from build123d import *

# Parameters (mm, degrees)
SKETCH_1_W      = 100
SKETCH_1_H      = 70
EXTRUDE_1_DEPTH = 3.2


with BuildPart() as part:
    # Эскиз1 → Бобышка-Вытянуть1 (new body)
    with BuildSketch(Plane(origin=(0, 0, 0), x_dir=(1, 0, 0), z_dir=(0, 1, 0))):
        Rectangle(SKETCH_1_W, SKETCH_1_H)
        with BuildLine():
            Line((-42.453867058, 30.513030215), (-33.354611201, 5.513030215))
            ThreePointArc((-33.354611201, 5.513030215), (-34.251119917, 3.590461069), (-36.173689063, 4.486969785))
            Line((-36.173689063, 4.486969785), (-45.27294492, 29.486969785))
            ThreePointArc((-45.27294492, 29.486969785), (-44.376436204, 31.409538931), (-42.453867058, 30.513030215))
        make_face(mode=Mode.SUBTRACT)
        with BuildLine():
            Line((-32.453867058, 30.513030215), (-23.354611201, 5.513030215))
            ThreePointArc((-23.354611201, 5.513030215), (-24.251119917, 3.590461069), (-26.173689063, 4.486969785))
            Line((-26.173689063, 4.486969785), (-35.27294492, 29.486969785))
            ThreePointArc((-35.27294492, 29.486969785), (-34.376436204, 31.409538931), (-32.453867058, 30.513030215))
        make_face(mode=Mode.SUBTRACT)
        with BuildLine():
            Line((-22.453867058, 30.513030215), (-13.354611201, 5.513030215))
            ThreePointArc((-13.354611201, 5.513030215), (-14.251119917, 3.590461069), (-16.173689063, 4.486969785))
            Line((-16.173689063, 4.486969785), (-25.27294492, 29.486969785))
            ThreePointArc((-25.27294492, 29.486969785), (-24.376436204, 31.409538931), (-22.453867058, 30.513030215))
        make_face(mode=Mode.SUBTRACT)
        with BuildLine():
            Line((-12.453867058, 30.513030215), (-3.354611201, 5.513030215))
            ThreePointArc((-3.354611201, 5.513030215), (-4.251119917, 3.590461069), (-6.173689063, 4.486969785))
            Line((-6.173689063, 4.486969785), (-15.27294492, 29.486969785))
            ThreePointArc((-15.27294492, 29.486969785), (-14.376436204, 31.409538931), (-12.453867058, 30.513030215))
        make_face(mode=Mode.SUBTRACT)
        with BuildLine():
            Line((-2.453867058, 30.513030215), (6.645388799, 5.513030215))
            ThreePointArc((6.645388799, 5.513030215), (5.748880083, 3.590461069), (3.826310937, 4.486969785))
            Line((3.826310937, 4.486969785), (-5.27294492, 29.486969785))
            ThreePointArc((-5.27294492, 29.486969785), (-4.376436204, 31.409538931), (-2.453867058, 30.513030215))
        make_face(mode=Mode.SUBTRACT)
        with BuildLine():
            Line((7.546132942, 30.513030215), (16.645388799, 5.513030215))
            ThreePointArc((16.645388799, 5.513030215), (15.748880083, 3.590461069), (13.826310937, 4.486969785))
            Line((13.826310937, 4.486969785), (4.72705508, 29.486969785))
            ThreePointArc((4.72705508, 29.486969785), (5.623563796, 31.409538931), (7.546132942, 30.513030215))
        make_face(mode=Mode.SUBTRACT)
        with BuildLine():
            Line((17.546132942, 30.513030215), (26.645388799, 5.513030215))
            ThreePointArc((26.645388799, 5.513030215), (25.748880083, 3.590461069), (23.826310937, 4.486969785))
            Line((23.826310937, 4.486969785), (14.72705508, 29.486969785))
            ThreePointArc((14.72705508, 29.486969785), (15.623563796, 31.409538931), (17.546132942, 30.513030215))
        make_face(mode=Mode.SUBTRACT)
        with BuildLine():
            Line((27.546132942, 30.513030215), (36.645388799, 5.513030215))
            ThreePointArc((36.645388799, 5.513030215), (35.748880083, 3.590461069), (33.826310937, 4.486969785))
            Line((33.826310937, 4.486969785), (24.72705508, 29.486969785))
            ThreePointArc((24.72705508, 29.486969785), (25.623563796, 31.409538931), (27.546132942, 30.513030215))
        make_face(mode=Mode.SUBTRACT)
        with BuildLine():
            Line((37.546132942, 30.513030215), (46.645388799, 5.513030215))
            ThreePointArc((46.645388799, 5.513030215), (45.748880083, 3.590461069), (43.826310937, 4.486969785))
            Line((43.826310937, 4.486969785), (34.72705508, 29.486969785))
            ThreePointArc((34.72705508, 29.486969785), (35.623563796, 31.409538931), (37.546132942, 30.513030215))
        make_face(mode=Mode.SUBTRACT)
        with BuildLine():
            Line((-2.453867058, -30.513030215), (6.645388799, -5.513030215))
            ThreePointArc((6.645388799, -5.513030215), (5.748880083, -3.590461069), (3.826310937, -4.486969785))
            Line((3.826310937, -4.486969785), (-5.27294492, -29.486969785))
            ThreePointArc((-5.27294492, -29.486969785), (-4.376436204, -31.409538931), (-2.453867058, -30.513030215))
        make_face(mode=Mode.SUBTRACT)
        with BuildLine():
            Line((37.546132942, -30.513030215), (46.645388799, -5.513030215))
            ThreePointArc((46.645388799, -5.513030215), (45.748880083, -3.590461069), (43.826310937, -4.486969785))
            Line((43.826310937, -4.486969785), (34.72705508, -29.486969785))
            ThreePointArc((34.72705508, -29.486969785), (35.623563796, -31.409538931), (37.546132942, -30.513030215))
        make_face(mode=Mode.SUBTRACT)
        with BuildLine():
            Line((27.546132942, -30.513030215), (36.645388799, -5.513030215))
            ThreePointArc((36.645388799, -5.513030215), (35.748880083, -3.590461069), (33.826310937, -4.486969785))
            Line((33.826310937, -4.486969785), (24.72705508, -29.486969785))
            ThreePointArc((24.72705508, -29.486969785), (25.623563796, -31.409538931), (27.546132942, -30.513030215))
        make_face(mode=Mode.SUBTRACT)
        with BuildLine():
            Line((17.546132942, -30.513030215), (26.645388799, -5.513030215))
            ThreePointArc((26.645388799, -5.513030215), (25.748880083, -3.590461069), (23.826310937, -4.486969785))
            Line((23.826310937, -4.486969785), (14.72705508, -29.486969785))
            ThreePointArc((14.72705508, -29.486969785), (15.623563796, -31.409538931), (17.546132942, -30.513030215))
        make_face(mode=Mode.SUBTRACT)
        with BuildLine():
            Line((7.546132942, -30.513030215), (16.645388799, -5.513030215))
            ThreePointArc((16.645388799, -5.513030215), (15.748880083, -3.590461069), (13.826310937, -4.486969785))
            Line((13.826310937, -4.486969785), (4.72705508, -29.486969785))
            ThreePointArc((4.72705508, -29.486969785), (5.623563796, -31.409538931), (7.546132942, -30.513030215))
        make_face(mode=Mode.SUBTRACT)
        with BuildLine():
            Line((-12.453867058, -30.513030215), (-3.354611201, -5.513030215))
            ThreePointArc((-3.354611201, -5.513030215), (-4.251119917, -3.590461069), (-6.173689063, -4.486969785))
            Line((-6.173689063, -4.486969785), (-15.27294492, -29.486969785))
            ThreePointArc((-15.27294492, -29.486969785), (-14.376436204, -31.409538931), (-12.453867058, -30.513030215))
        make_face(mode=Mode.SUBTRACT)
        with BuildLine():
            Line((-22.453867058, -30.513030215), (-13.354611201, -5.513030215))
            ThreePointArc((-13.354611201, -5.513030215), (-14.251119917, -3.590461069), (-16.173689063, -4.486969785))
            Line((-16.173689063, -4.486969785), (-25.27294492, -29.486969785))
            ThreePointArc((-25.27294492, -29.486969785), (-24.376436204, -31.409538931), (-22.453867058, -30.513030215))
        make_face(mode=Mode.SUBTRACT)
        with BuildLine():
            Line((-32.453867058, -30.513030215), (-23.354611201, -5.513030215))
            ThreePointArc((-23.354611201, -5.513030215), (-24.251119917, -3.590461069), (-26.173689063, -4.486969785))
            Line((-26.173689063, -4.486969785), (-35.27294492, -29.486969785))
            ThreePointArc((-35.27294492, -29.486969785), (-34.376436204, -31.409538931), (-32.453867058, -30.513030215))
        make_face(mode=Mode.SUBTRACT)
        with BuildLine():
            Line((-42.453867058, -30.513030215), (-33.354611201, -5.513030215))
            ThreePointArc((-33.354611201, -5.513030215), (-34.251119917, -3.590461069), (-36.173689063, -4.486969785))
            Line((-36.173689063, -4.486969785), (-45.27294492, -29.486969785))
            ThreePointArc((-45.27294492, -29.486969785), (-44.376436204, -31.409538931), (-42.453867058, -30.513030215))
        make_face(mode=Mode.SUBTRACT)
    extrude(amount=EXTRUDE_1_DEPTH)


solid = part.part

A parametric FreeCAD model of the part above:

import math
import FreeCAD as App
import Part
import Sketcher
from FreeCAD import Vector
Q = App.Units.Quantity


def add_polygon(sketch, points):
    """Adds a closed chain of lines whose ends are joined by coincident constraints."""
    first, n = sketch.GeometryCount, len(points)
    for a, b in zip(points, points[1:] + points[:1]):
        sketch.addGeometry(Part.LineSegment(App.Vector(*a, 0), App.Vector(*b, 0)), False)
    for i in range(n):
        sketch.addConstraint(Sketcher.Constraint("Coincident", first + i, 2, first + (i + 1) % n, 1))

doc = App.newDocument("Part")
params = doc.addObject("Spreadsheet::Sheet", "Params")
for row, (alias, value) in enumerate([
    ("sketch1_radius", "1.5 mm"),
    ("sketch1_width", "100 mm"),
    ("sketch1_height", "70 mm"),
    ("pad1_length", "3.2 mm"),
], start=1):
    params.set(f"A{row}", alias)
    params.set(f"B{row}", "=" + value)
    params.setAlias(f"B{row}", alias)

body = doc.addObject("PartDesign::Body", "Body")

sketch1 = doc.addObject("Sketcher::SketchObject", "Sketch")
body.addObject(sketch1)
sketch1.AttachmentSupport = (doc.XZ_Plane, [""])
sketch1.MapMode = "FlatFace"
add_polygon(sketch1, [(-50, -35), (-50, 35), (50, 35), (50, -35)])
sketch1.addGeometry(Part.LineSegment(Vector(-33.4, 5.5, 0), Vector(-42.5, 30.5, 0)), False)
sketch1.addGeometry(Part.ArcOfCircle(Part.Circle(Vector(-43.9, 30, 0), Vector(0, 0, 1), 1.5), math.radians(20), math.radians(200)), False)
sketch1.addGeometry(Part.LineSegment(Vector(-45.3, 29.5, 0), Vector(-36.2, 4.5, 0)), False)
sketch1.addGeometry(Part.ArcOfCircle(Part.Circle(Vector(-34.8, 5, 0), Vector(0, 0, 1), 1.5), math.radians(-160), math.radians(20)), False)
sketch1.addGeometry(Part.LineSegment(Vector(-23.4, 5.5, 0), Vector(-32.5, 30.5, 0)), False)
sketch1.addGeometry(Part.ArcOfCircle(Part.Circle(Vector(-33.9, 30, 0), Vector(0, 0, 1), 1.5), math.radians(20), math.radians(200)), False)
sketch1.addGeometry(Part.LineSegment(Vector(-35.3, 29.5, 0), Vector(-26.2, 4.5, 0)), False)
sketch1.addGeometry(Part.ArcOfCircle(Part.Circle(Vector(-24.8, 5, 0), Vector(0, 0, 1), 1.5), math.radians(-160), math.radians(20)), False)
sketch1.addGeometry(Part.LineSegment(Vector(-13.4, 5.5, 0), Vector(-22.5, 30.5, 0)), False)
sketch1.addGeometry(Part.ArcOfCircle(Part.Circle(Vector(-23.9, 30, 0), Vector(0, 0, 1), 1.5), math.radians(20), math.radians(200)), False)
sketch1.addGeometry(Part.LineSegment(Vector(-25.3, 29.5, 0), Vector(-16.2, 4.5, 0)), False)
sketch1.addGeometry(Part.ArcOfCircle(Part.Circle(Vector(-14.8, 5, 0), Vector(0, 0, 1), 1.5), math.radians(-160), math.radians(20)), False)
sketch1.addGeometry(Part.LineSegment(Vector(-3.4, 5.5, 0), Vector(-12.5, 30.5, 0)), False)
sketch1.addGeometry(Part.ArcOfCircle(Part.Circle(Vector(-13.9, 30, 0), Vector(0, 0, 1), 1.5), math.radians(20), math.radians(200)), False)
sketch1.addGeometry(Part.LineSegment(Vector(-15.3, 29.5, 0), Vector(-6.2, 4.5, 0)), False)
sketch1.addGeometry(Part.ArcOfCircle(Part.Circle(Vector(-4.8, 5, 0), Vector(0, 0, 1), 1.5), math.radians(-160), math.radians(20)), False)
sketch1.addGeometry(Part.LineSegment(Vector(6.6, 5.5, 0), Vector(-2.5, 30.5, 0)), False)
sketch1.addGeometry(Part.ArcOfCircle(Part.Circle(Vector(-3.9, 30, 0), Vector(0, 0, 1), 1.5), math.radians(20), math.radians(200)), False)
sketch1.addGeometry(Part.LineSegment(Vector(-5.3, 29.5, 0), Vector(3.8, 4.5, 0)), False)
sketch1.addGeometry(Part.ArcOfCircle(Part.Circle(Vector(5.2, 5, 0), Vector(0, 0, 1), 1.5), math.radians(-160), math.radians(20)), False)
sketch1.addGeometry(Part.LineSegment(Vector(16.6, 5.5, 0), Vector(7.5, 30.5, 0)), False)
sketch1.addGeometry(Part.ArcOfCircle(Part.Circle(Vector(6.1, 30, 0), Vector(0, 0, 1), 1.5), math.radians(20), math.radians(200)), False)
sketch1.addGeometry(Part.LineSegment(Vector(4.7, 29.5, 0), Vector(13.8, 4.5, 0)), False)
sketch1.addGeometry(Part.ArcOfCircle(Part.Circle(Vector(15.2, 5, 0), Vector(0, 0, 1), 1.5), math.radians(-160), math.radians(20)), False)
sketch1.addGeometry(Part.LineSegment(Vector(26.6, 5.5, 0), Vector(17.5, 30.5, 0)), False)
sketch1.addGeometry(Part.ArcOfCircle(Part.Circle(Vector(16.1, 30, 0), Vector(0, 0, 1), 1.5), math.radians(20), math.radians(200)), False)
sketch1.addGeometry(Part.LineSegment(Vector(14.7, 29.5, 0), Vector(23.8, 4.5, 0)), False)
sketch1.addGeometry(Part.ArcOfCircle(Part.Circle(Vector(25.2, 5, 0), Vector(0, 0, 1), 1.5), math.radians(-160), math.radians(20)), False)
sketch1.addGeometry(Part.LineSegment(Vector(36.6, 5.5, 0), Vector(27.5, 30.5, 0)), False)
sketch1.addGeometry(Part.ArcOfCircle(Part.Circle(Vector(26.1, 30, 0), Vector(0, 0, 1), 1.5), math.radians(20), math.radians(200)), False)
sketch1.addGeometry(Part.LineSegment(Vector(24.7, 29.5, 0), Vector(33.8, 4.5, 0)), False)
sketch1.addGeometry(Part.ArcOfCircle(Part.Circle(Vector(35.2, 5, 0), Vector(0, 0, 1), 1.5), math.radians(-160), math.radians(20)), False)
sketch1.addGeometry(Part.LineSegment(Vector(46.6, 5.5, 0), Vector(37.5, 30.5, 0)), False)
sketch1.addGeometry(Part.ArcOfCircle(Part.Circle(Vector(36.1, 30, 0), Vector(0, 0, 1), 1.5), math.radians(20), math.radians(200)), False)
sketch1.addGeometry(Part.LineSegment(Vector(34.7, 29.5, 0), Vector(43.8, 4.5, 0)), False)
sketch1.addGeometry(Part.ArcOfCircle(Part.Circle(Vector(45.2, 5, 0), Vector(0, 0, 1), 1.5), math.radians(-160), math.radians(20)), False)
sketch1.addGeometry(Part.ArcOfCircle(Part.Circle(Vector(-43.9, -30, 0), Vector(0, 0, 1), 1.5), math.radians(160), math.radians(340)), False)
sketch1.addGeometry(Part.LineSegment(Vector(-42.5, -30.5, 0), Vector(-33.4, -5.5, 0)), False)
sketch1.addGeometry(Part.ArcOfCircle(Part.Circle(Vector(-34.8, -5, 0), Vector(0, 0, 1), 1.5), math.radians(-20), math.radians(160)), False)
sketch1.addGeometry(Part.LineSegment(Vector(-36.2, -4.5, 0), Vector(-45.3, -29.5, 0)), False)
sketch1.addGeometry(Part.ArcOfCircle(Part.Circle(Vector(-33.9, -30, 0), Vector(0, 0, 1), 1.5), math.radians(160), math.radians(340)), False)
sketch1.addGeometry(Part.LineSegment(Vector(-32.5, -30.5, 0), Vector(-23.4, -5.5, 0)), False)
sketch1.addGeometry(Part.ArcOfCircle(Part.Circle(Vector(-24.8, -5, 0), Vector(0, 0, 1), 1.5), math.radians(-20), math.radians(160)), False)
sketch1.addGeometry(Part.LineSegment(Vector(-26.2, -4.5, 0), Vector(-35.3, -29.5, 0)), False)
sketch1.addGeometry(Part.ArcOfCircle(Part.Circle(Vector(-23.9, -30, 0), Vector(0, 0, 1), 1.5), math.radians(160), math.radians(340)), False)
sketch1.addGeometry(Part.LineSegment(Vector(-22.5, -30.5, 0), Vector(-13.4, -5.5, 0)), False)
sketch1.addGeometry(Part.ArcOfCircle(Part.Circle(Vector(-14.8, -5, 0), Vector(0, 0, 1), 1.5), math.radians(-20), math.radians(160)), False)
sketch1.addGeometry(Part.LineSegment(Vector(-16.2, -4.5, 0), Vector(-25.3, -29.5, 0)), False)
sketch1.addGeometry(Part.ArcOfCircle(Part.Circle(Vector(-13.9, -30, 0), Vector(0, 0, 1), 1.5), math.radians(160), math.radians(340)), False)
sketch1.addGeometry(Part.LineSegment(Vector(-12.5, -30.5, 0), Vector(-3.4, -5.5, 0)), False)
sketch1.addGeometry(Part.ArcOfCircle(Part.Circle(Vector(-4.8, -5, 0), Vector(0, 0, 1), 1.5), math.radians(-20), math.radians(160)), False)
sketch1.addGeometry(Part.LineSegment(Vector(-6.2, -4.5, 0), Vector(-15.3, -29.5, 0)), False)
sketch1.addGeometry(Part.ArcOfCircle(Part.Circle(Vector(-3.9, -30, 0), Vector(0, 0, 1), 1.5), math.radians(160), math.radians(340)), False)
sketch1.addGeometry(Part.LineSegment(Vector(-2.5, -30.5, 0), Vector(6.6, -5.5, 0)), False)
sketch1.addGeometry(Part.ArcOfCircle(Part.Circle(Vector(5.2, -5, 0), Vector(0, 0, 1), 1.5), math.radians(-20), math.radians(160)), False)
sketch1.addGeometry(Part.LineSegment(Vector(3.8, -4.5, 0), Vector(-5.3, -29.5, 0)), False)
sketch1.addGeometry(Part.ArcOfCircle(Part.Circle(Vector(6.1, -30, 0), Vector(0, 0, 1), 1.5), math.radians(160), math.radians(340)), False)
sketch1.addGeometry(Part.LineSegment(Vector(7.5, -30.5, 0), Vector(16.6, -5.5, 0)), False)
sketch1.addGeometry(Part.ArcOfCircle(Part.Circle(Vector(15.2, -5, 0), Vector(0, 0, 1), 1.5), math.radians(-20), math.radians(160)), False)
sketch1.addGeometry(Part.LineSegment(Vector(13.8, -4.5, 0), Vector(4.7, -29.5, 0)), False)
sketch1.addGeometry(Part.ArcOfCircle(Part.Circle(Vector(16.1, -30, 0), Vector(0, 0, 1), 1.5), math.radians(160), math.radians(340)), False)
sketch1.addGeometry(Part.LineSegment(Vector(17.5, -30.5, 0), Vector(26.6, -5.5, 0)), False)
sketch1.addGeometry(Part.ArcOfCircle(Part.Circle(Vector(25.2, -5, 0), Vector(0, 0, 1), 1.5), math.radians(-20), math.radians(160)), False)
sketch1.addGeometry(Part.LineSegment(Vector(23.8, -4.5, 0), Vector(14.7, -29.5, 0)), False)
sketch1.addGeometry(Part.ArcOfCircle(Part.Circle(Vector(26.1, -30, 0), Vector(0, 0, 1), 1.5), math.radians(160), math.radians(340)), False)
sketch1.addGeometry(Part.LineSegment(Vector(27.5, -30.5, 0), Vector(36.6, -5.5, 0)), False)
sketch1.addGeometry(Part.ArcOfCircle(Part.Circle(Vector(35.2, -5, 0), Vector(0, 0, 1), 1.5), math.radians(-20), math.radians(160)), False)
sketch1.addGeometry(Part.LineSegment(Vector(33.8, -4.5, 0), Vector(24.7, -29.5, 0)), False)
sketch1.addGeometry(Part.ArcOfCircle(Part.Circle(Vector(36.1, -30, 0), Vector(0, 0, 1), 1.5), math.radians(160), math.radians(340)), False)
sketch1.addGeometry(Part.LineSegment(Vector(37.5, -30.5, 0), Vector(46.6, -5.5, 0)), False)
sketch1.addGeometry(Part.ArcOfCircle(Part.Circle(Vector(45.2, -5, 0), Vector(0, 0, 1), 1.5), math.radians(-20), math.radians(160)), False)
sketch1.addGeometry(Part.LineSegment(Vector(43.8, -4.5, 0), Vector(34.7, -29.5, 0)), False)
sketch1.addConstraint([
    Sketcher.Constraint("Tangent", 4, 2, 5, 1),
    Sketcher.Constraint("Tangent", 5, 2, 6, 1),
    Sketcher.Constraint("Tangent", 6, 2, 7, 1),
    Sketcher.Constraint("Tangent", 7, 2, 4, 1),
    Sketcher.Constraint("Tangent", 8, 2, 9, 1),
    Sketcher.Constraint("Tangent", 9, 2, 10, 1),
    Sketcher.Constraint("Tangent", 10, 2, 11, 1),
    Sketcher.Constraint("Tangent", 11, 2, 8, 1),
    Sketcher.Constraint("Tangent", 12, 2, 13, 1),
    Sketcher.Constraint("Tangent", 13, 2, 14, 1),
    Sketcher.Constraint("Tangent", 14, 2, 15, 1),
    Sketcher.Constraint("Tangent", 15, 2, 12, 1),
    Sketcher.Constraint("Tangent", 16, 2, 17, 1),
    Sketcher.Constraint("Tangent", 17, 2, 18, 1),
    Sketcher.Constraint("Tangent", 18, 2, 19, 1),
    Sketcher.Constraint("Tangent", 19, 2, 16, 1),
    Sketcher.Constraint("Tangent", 20, 2, 21, 1),
    Sketcher.Constraint("Tangent", 21, 2, 22, 1),
    Sketcher.Constraint("Tangent", 22, 2, 23, 1),
    Sketcher.Constraint("Tangent", 23, 2, 20, 1),
    Sketcher.Constraint("Tangent", 24, 2, 25, 1),
    Sketcher.Constraint("Tangent", 25, 2, 26, 1),
    Sketcher.Constraint("Tangent", 26, 2, 27, 1),
    Sketcher.Constraint("Tangent", 27, 2, 24, 1),
    Sketcher.Constraint("Tangent", 28, 2, 29, 1),
    Sketcher.Constraint("Tangent", 29, 2, 30, 1),
    Sketcher.Constraint("Tangent", 30, 2, 31, 1),
    Sketcher.Constraint("Tangent", 31, 2, 28, 1),
    Sketcher.Constraint("Tangent", 32, 2, 33, 1),
    Sketcher.Constraint("Tangent", 33, 2, 34, 1),
    Sketcher.Constraint("Tangent", 34, 2, 35, 1),
    Sketcher.Constraint("Tangent", 35, 2, 32, 1),
    Sketcher.Constraint("Tangent", 36, 2, 37, 1),
    Sketcher.Constraint("Tangent", 37, 2, 38, 1),
    Sketcher.Constraint("Tangent", 38, 2, 39, 1),
    Sketcher.Constraint("Tangent", 39, 2, 36, 1),
    Sketcher.Constraint("Tangent", 40, 2, 41, 1),
    Sketcher.Constraint("Tangent", 41, 2, 42, 1),
    Sketcher.Constraint("Tangent", 42, 2, 43, 1),
    Sketcher.Constraint("Tangent", 43, 2, 40, 1),
    Sketcher.Constraint("Tangent", 44, 2, 45, 1),
    Sketcher.Constraint("Tangent", 45, 2, 46, 1),
    Sketcher.Constraint("Tangent", 46, 2, 47, 1),
    Sketcher.Constraint("Tangent", 47, 2, 44, 1),
    Sketcher.Constraint("Tangent", 48, 2, 49, 1),
    Sketcher.Constraint("Tangent", 49, 2, 50, 1),
    Sketcher.Constraint("Tangent", 50, 2, 51, 1),
    Sketcher.Constraint("Tangent", 51, 2, 48, 1),
    Sketcher.Constraint("Tangent", 52, 2, 53, 1),
    Sketcher.Constraint("Tangent", 53, 2, 54, 1),
    Sketcher.Constraint("Tangent", 54, 2, 55, 1),
    Sketcher.Constraint("Tangent", 55, 2, 52, 1),
    Sketcher.Constraint("Tangent", 56, 2, 57, 1),
    Sketcher.Constraint("Tangent", 57, 2, 58, 1),
    Sketcher.Constraint("Tangent", 58, 2, 59, 1),
    Sketcher.Constraint("Tangent", 59, 2, 56, 1),
    Sketcher.Constraint("Tangent", 60, 2, 61, 1),
    Sketcher.Constraint("Tangent", 61, 2, 62, 1),
    Sketcher.Constraint("Tangent", 62, 2, 63, 1),
    Sketcher.Constraint("Tangent", 63, 2, 60, 1),
    Sketcher.Constraint("Tangent", 64, 2, 65, 1),
    Sketcher.Constraint("Tangent", 65, 2, 66, 1),
    Sketcher.Constraint("Tangent", 66, 2, 67, 1),
    Sketcher.Constraint("Tangent", 67, 2, 64, 1),
    Sketcher.Constraint("Tangent", 68, 2, 69, 1),
    Sketcher.Constraint("Tangent", 69, 2, 70, 1),
    Sketcher.Constraint("Tangent", 70, 2, 71, 1),
    Sketcher.Constraint("Tangent", 71, 2, 68, 1),
    Sketcher.Constraint("Tangent", 72, 2, 73, 1),
    Sketcher.Constraint("Tangent", 73, 2, 74, 1),
    Sketcher.Constraint("Tangent", 74, 2, 75, 1),
    Sketcher.Constraint("Tangent", 75, 2, 72, 1),
    Sketcher.Constraint("Vertical", 0),
    Sketcher.Constraint("Horizontal", 1),
    Sketcher.Constraint("Vertical", 2),
    Sketcher.Constraint("Horizontal", 3),
    Sketcher.Constraint("Equal", 5, 7),
    Sketcher.Constraint("Equal", 7, 9),
    Sketcher.Constraint("Equal", 9, 11),
    Sketcher.Constraint("Equal", 11, 13),
    Sketcher.Constraint("Equal", 13, 15),
    Sketcher.Constraint("Equal", 15, 17),
    Sketcher.Constraint("Equal", 17, 19),
    Sketcher.Constraint("Equal", 19, 21),
    Sketcher.Constraint("Equal", 21, 23),
    Sketcher.Constraint("Equal", 23, 25),
    Sketcher.Constraint("Equal", 25, 27),
    Sketcher.Constraint("Equal", 27, 29),
    Sketcher.Constraint("Equal", 29, 31),
    Sketcher.Constraint("Equal", 31, 33),
    Sketcher.Constraint("Equal", 33, 35),
    Sketcher.Constraint("Equal", 35, 37),
    Sketcher.Constraint("Equal", 37, 39),
    Sketcher.Constraint("Equal", 39, 40),
    Sketcher.Constraint("Equal", 40, 42),
    Sketcher.Constraint("Equal", 42, 44),
    Sketcher.Constraint("Equal", 44, 46),
    Sketcher.Constraint("Equal", 46, 48),
    Sketcher.Constraint("Equal", 48, 50),
    Sketcher.Constraint("Equal", 50, 52),
    Sketcher.Constraint("Equal", 52, 54),
    Sketcher.Constraint("Equal", 54, 56),
    Sketcher.Constraint("Equal", 56, 58),
    Sketcher.Constraint("Equal", 58, 60),
    Sketcher.Constraint("Equal", 60, 62),
    Sketcher.Constraint("Equal", 62, 64),
    Sketcher.Constraint("Equal", 64, 66),
    Sketcher.Constraint("Equal", 66, 68),
    Sketcher.Constraint("Equal", 68, 70),
    Sketcher.Constraint("Equal", 70, 72),
    Sketcher.Constraint("Equal", 72, 74),
    Sketcher.Constraint("Symmetric", 0, 2, 2, 2, -1, 1),
    Sketcher.Constraint("Symmetric", 5, 3, 40, 3, -1),
    Sketcher.Constraint("Symmetric", 7, 3, 42, 3, -1),
    Sketcher.Constraint("Symmetric", 9, 3, 44, 3, -1),
    Sketcher.Constraint("Symmetric", 11, 3, 46, 3, -1),
    Sketcher.Constraint("Symmetric", 13, 3, 48, 3, -1),
    Sketcher.Constraint("Symmetric", 15, 3, 50, 3, -1),
    Sketcher.Constraint("Symmetric", 17, 3, 52, 3, -1),
    Sketcher.Constraint("Symmetric", 19, 3, 54, 3, -1),
    Sketcher.Constraint("Symmetric", 21, 3, 56, 3, -1),
    Sketcher.Constraint("Symmetric", 23, 3, 58, 3, -1),
    Sketcher.Constraint("Symmetric", 25, 3, 60, 3, -1),
    Sketcher.Constraint("Symmetric", 27, 3, 62, 3, -1),
    Sketcher.Constraint("Symmetric", 29, 3, 64, 3, -1),
    Sketcher.Constraint("Symmetric", 31, 3, 66, 3, -1),
    Sketcher.Constraint("Symmetric", 33, 3, 68, 3, -1),
    Sketcher.Constraint("Symmetric", 35, 3, 70, 3, -1),
    Sketcher.Constraint("Symmetric", 37, 3, 72, 3, -1),
    Sketcher.Constraint("Symmetric", 39, 3, 74, 3, -1),
    Sketcher.Constraint("Parallel", 6, 8),
    Sketcher.Constraint("Parallel", 10, 12),
    Sketcher.Constraint("Parallel", 14, 16),
    Sketcher.Constraint("Parallel", 18, 20),
    Sketcher.Constraint("Parallel", 22, 24),
    Sketcher.Constraint("Parallel", 26, 28),
    Sketcher.Constraint("Parallel", 30, 32),
    Sketcher.Constraint("Parallel", 34, 36),
    Sketcher.Constraint("Horizontal", 5, 3, 9, 3),
    Sketcher.Constraint("Horizontal", 7, 3, 11, 3),
    Sketcher.Constraint("Horizontal", 9, 3, 13, 3),
    Sketcher.Constraint("Horizontal", 11, 3, 15, 3),
    Sketcher.Constraint("Horizontal", 13, 3, 17, 3),
    Sketcher.Constraint("Horizontal", 15, 3, 19, 3),
    Sketcher.Constraint("Horizontal", 17, 3, 21, 3),
    Sketcher.Constraint("Horizontal", 19, 3, 23, 3),
    Sketcher.Constraint("Horizontal", 21, 3, 25, 3),
    Sketcher.Constraint("Horizontal", 23, 3, 27, 3),
    Sketcher.Constraint("Horizontal", 25, 3, 29, 3),
    Sketcher.Constraint("Horizontal", 27, 3, 31, 3),
    Sketcher.Constraint("Horizontal", 29, 3, 33, 3),
    Sketcher.Constraint("Horizontal", 31, 3, 35, 3),
    Sketcher.Constraint("Horizontal", 33, 3, 37, 3),
    Sketcher.Constraint("Horizontal", 35, 3, 39, 3),
    Sketcher.Constraint("Radius", 5, 1.5),
    Sketcher.Constraint("DistanceX", 1, 1, 1, 2, 100.0),
    Sketcher.Constraint("DistanceY", 0, 1, 0, 2, 70.0),
    Sketcher.Constraint("Angle", 4, Q("110 deg")),
    Sketcher.Constraint("DistanceY", -1, 1, 5, 3, 30.0),
    Sketcher.Constraint("DistanceY", -1, 1, 7, 3, 5.0),
    Sketcher.Constraint("DistanceX", 7, 3, -1, 1, 34.76415),
    Sketcher.Constraint("DistanceX", 11, 3, -1, 1, 24.76415),
    Sketcher.Constraint("DistanceX", 15, 3, -1, 1, 14.76415),
    Sketcher.Constraint("DistanceX", 19, 3, -1, 1, 4.76415),
    Sketcher.Constraint("DistanceX", -1, 1, 23, 3, 5.23585),
    Sketcher.Constraint("DistanceX", -1, 1, 27, 3, 15.23585),
    Sketcher.Constraint("DistanceX", -1, 1, 31, 3, 25.23585),
    Sketcher.Constraint("DistanceX", -1, 1, 35, 3, 35.23585),
    Sketcher.Constraint("DistanceX", -1, 1, 39, 3, 45.23585),
])
sketch1.setExpression("Constraints[158]", "Params.sketch1_radius")
sketch1.setExpression("Constraints[159]", "Params.sketch1_width")
sketch1.setExpression("Constraints[160]", "Params.sketch1_height")
pad1 = doc.addObject("PartDesign::Pad", "Pad")
body.addObject(pad1)
pad1.Profile = sketch1
pad1.setExpression("Length", "Params.pad1_length")
pad1.Reversed = True

doc.recompute()
